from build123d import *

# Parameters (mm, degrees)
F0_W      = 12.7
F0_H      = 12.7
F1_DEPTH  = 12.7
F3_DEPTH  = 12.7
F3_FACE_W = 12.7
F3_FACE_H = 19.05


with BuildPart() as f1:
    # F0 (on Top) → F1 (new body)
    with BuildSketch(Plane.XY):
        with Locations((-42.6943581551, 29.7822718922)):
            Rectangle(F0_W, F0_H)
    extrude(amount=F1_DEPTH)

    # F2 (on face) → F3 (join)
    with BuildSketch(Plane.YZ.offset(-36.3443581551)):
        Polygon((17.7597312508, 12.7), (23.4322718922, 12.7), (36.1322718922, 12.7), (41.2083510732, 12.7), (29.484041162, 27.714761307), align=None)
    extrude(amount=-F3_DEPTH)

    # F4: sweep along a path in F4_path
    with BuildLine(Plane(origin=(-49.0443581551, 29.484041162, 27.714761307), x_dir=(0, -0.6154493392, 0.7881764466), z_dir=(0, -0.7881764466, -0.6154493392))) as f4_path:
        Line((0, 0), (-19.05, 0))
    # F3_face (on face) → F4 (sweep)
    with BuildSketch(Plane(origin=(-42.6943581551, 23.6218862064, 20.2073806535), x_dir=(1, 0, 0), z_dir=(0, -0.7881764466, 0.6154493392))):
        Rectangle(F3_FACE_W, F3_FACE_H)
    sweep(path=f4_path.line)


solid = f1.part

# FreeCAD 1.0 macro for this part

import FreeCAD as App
import Part
import Sketcher
Q = App.Units.Quantity

doc = App.newDocument("Part")
params = doc.addObject("Spreadsheet::Sheet", "Params")
for row, (alias, value) in enumerate([
    ("sketch1_width", "0.5 in"),
    ("pad1_length", "0.5 in"),
    ("sketch2_length", "0.75 in"),
    ("pad2_length", "0.5 in"),
    ("sketch3_width", "0.5 in"),
    ("sketch3_height", "0.75 in"),
    ("sketch4_width", "0.75 in"),
], start=1):
    params.set(f"A{row}", alias)
    params.set(f"B{row}", "=" + value)
    params.setAlias(f"B{row}", alias)

body = doc.addObject("PartDesign::Body", "Body")

# Sketch on XY plane
sketch1 = body.newObject("Sketcher::SketchObject", "Sketch")
sketch1.AttachmentSupport = (doc.getObject("XY_Plane"), [""])
sketch1.MapMode = "FlatFace"
sketch1.addGeometry([
    Part.LineSegment(App.Vector(-49, 36, 0), App.Vector(-49, 23, 0)),
    Part.LineSegment(App.Vector(-49, 23, 0), App.Vector(-36, 23, 0)),
    Part.LineSegment(App.Vector(-36, 23, 0), App.Vector(-36, 36, 0)),
    Part.LineSegment(App.Vector(-36, 36, 0), App.Vector(-49, 36, 0)),
], False)
sketch1.addConstraint([
    Sketcher.Constraint("Coincident", 0, 2, 1, 1),
    Sketcher.Constraint("Coincident", 1, 2, 2, 1),
    Sketcher.Constraint("Coincident", 2, 2, 3, 1),
    Sketcher.Constraint("Coincident", 3, 2, 0, 1),
    Sketcher.Constraint("Vertical", 0),
    Sketcher.Constraint("Horizontal", 1),
    Sketcher.Constraint("Vertical", 2),
    Sketcher.Constraint("Horizontal", 3),
    Sketcher.Constraint("Equal", 3, 0),
    Sketcher.Constraint("DistanceX", 1, 1, 1, 2, Q("0.5 in")),
    Sketcher.Constraint("DistanceX", 0, 2, -1, 1, Q("49.044358 mm")),
    Sketcher.Constraint("DistanceY", -1, 1, 0, 2, Q("23.432272 mm")),
])
sketch1.setExpression("Constraints[9]", "Params.sketch1_width")
pad1 = body.newObject("PartDesign::Pad", "Pad")
pad1.Profile = sketch1
pad1.setExpression("Length", "Params.pad1_length")

# Sketch on YZ plane
sketch2 = body.newObject("Sketcher::SketchObject", "Sketch001")
sketch2.AttachmentSupport = (doc.getObject("YZ_Plane"), [""])
sketch2.MapMode = "FlatFace"
sketch2.AttachmentOffset = App.Placement(App.Vector(0, 0, -36.344358), App.Rotation())
sketch2.addGeometry([
    Part.LineSegment(App.Vector(18, 13, 0), App.Vector(41, 13, 0)),
    Part.LineSegment(App.Vector(41, 13, 0), App.Vector(29, 28, 0)),
    Part.LineSegment(App.Vector(29, 28, 0), App.Vector(18, 13, 0)),
], False)
sketch2.addConstraint([
    Sketcher.Constraint("Coincident", 0, 2, 1, 1),
    Sketcher.Constraint("Coincident", 1, 2, 2, 1),
    Sketcher.Constraint("Coincident", 2, 2, 0, 1),
    Sketcher.Constraint("Horizontal", 0),
    Sketcher.Constraint("Equal", 1, 2),
    Sketcher.Constraint("DistanceY", -1, 1, 0, 2, Q("0.5 in")),
    Sketcher.Constraint("Distance", 1, Q("0.75 in")),
    Sketcher.Constraint("DistanceX", 0, 1, 0, 2, Q("23.44862 mm")),
    Sketcher.Constraint("DistanceX", -1, 1, 0, 2, Q("41.208351 mm")),
])
sketch2.setExpression("Constraints[6]", "Params.sketch2_length")
pad2 = body.newObject("PartDesign::Pad", "Pad001")
pad2.Profile = sketch2
pad2.setExpression("Length", "Params.pad2_length")
pad2.Reversed = True

# Sketch on an angled plane
sketch3 = body.newObject("Sketcher::SketchObject", "Sketch002")
sketch3.Placement = App.Placement(App.Vector(-42.694358, 23.621886, 20.207381), App.Rotation(App.Vector(1, 0, 0), App.Vector(0, 0.615449339, 0.788176447), App.Vector(0, -0.788176447, 0.615449339), "ZXY"))
sketch3.addGeometry([
    Part.LineSegment(App.Vector(-6, 10, 0), App.Vector(-6, -10, 0)),
    Part.LineSegment(App.Vector(-6, -10, 0), App.Vector(6, -10, 0)),
    Part.LineSegment(App.Vector(6, -10, 0), App.Vector(6, 10, 0)),
    Part.LineSegment(App.Vector(6, 10, 0), App.Vector(-6, 10, 0)),
], False)
sketch3.addConstraint([
    Sketcher.Constraint("Coincident", 0, 2, 1, 1),
    Sketcher.Constraint("Coincident", 1, 2, 2, 1),
    Sketcher.Constraint("Coincident", 2, 2, 3, 1),
    Sketcher.Constraint("Coincident", 3, 2, 0, 1),
    Sketcher.Constraint("Vertical", 0),
    Sketcher.Constraint("Horizontal", 1),
    Sketcher.Constraint("Vertical", 2),
    Sketcher.Constraint("Horizontal", 3),
    Sketcher.Constraint("Symmetric", 0, 2, 2, 2, -1, 1),
    Sketcher.Constraint("DistanceX", 1, 1, 1, 2, Q("0.5 in")),
    Sketcher.Constraint("DistanceY", 0, 2, 0, 1, Q("0.75 in")),
])
sketch3.setExpression("Constraints[9]", "Params.sketch3_width")
sketch3.setExpression("Constraints[10]", "Params.sketch3_height")

# Sketch on an angled plane
sketch4 = body.newObject("Sketcher::SketchObject", "Sketch003")
sketch4.Placement = App.Placement(App.Vector(0, 31.760089, 24.799936), App.Rotation(App.Vector(0, -0.615449339, 0.788176447), App.Vector(1, 0, 0), App.Vector(0, 0.788176447, 0.615449339), "ZXY"))
sketch4.addGeometry(Part.LineSegment(App.Vector(4, -49, 0), App.Vector(-15, -49, 0)), False)
sketch4.addConstraint([
    Sketcher.Constraint("Horizontal", 0),
    Sketcher.Constraint("DistanceX", 0, 2, 0, 1, Q("0.75 in")),
    Sketcher.Constraint("DistanceX", -1, 1, 0, 1, Q("3.698188 mm")),
    Sketcher.Constraint("DistanceY", 0, 1, -1, 1, Q("49.044358 mm")),
])
sketch4.setExpression("Constraints[1]", "Params.sketch4_width")
doc.recompute()

additivepipe = body.newObject("PartDesign::AdditivePipe", "AdditivePipe")
additivepipe.Profile = sketch3
additivepipe.Spine = (sketch4, ["Edge1"])

doc.recompute()
